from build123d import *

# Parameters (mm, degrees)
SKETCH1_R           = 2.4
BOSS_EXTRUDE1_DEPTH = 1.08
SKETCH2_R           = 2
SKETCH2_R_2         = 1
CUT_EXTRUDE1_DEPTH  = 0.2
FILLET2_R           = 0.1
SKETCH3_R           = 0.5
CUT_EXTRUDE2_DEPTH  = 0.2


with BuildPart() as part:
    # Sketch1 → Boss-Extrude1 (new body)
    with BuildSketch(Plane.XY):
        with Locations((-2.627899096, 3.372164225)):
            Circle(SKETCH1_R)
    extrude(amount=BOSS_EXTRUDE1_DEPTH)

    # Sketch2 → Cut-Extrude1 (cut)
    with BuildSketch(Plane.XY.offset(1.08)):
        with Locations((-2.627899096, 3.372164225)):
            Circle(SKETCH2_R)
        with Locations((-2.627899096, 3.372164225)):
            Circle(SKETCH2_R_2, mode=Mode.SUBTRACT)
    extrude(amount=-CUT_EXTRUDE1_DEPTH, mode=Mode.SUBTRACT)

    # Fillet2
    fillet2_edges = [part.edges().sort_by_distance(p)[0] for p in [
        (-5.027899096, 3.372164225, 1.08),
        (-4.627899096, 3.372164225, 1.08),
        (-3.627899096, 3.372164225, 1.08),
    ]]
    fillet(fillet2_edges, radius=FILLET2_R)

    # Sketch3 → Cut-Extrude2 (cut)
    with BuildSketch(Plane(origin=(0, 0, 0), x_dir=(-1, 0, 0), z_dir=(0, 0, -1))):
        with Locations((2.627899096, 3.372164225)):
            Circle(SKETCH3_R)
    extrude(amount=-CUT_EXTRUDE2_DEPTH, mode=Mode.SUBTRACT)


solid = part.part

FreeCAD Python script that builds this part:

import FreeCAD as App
import Part
import Sketcher

V = App.Vector


def edges_at(feature, points):
    """Names of the edges that pass closest to the given points."""
    edges = feature.Shape.Edges
    near = lambda p: min(range(len(edges)), key=lambda i: edges[i].distToShape(Part.Vertex(*p))[0])
    return sorted({f"Edge{near(p) + 1}" for p in points})

doc = App.newDocument("Part")
body = doc.addObject("PartDesign::Body", "Body")

# Sketch on XY plane
sketch1 = body.newObject("Sketcher::SketchObject", "Sketch")
sketch1.AttachmentSupport = (doc.getObject("XY_Plane"), [""])
sketch1.MapMode = "FlatFace"
sketch1.addGeometry(Part.Circle(V(-2.6, 3.4, 0), V(0, 0, 1), 2.4), False)
sketch1.addConstraint([
    Sketcher.Constraint("Diameter", 0, 4.8),
    Sketcher.Constraint("DistanceX", 0, 3, -1, 1, 2.627899),
    Sketcher.Constraint("DistanceY", -1, 1, 0, 3, 3.372164),
])
pad1 = body.newObject("PartDesign::Pad", "Pad")
pad1.Profile = sketch1
pad1.Length = 1.08

# Sketch on XY plane
sketch2 = body.newObject("Sketcher::SketchObject", "Sketch001")
sketch2.AttachmentSupport = (doc.getObject("XY_Plane"), [""])
sketch2.MapMode = "FlatFace"
sketch2.AttachmentOffset = App.Placement(V(0, 0, 1.08), App.Rotation())
sketch2.addGeometry([
    Part.Circle(V(-2.6, 3.4, 0), V(0, 0, 1), 2),
    Part.Circle(V(-2.6, 3.4, 0), V(0, 0, 1), 1),
], False)
sketch2.addConstraint([
    Sketcher.Constraint("Coincident", 1, 3, 0, 3),
    Sketcher.Constraint("Diameter", 0, 4.0),
    Sketcher.Constraint("Diameter", 1, 2.0),
    Sketcher.Constraint("DistanceX", 0, 3, -1, 1, 2.627899),
    Sketcher.Constraint("DistanceY", -1, 1, 0, 3, 3.372164),
])
pocket1 = body.newObject("PartDesign::Pocket", "Pocket")
pocket1.Profile = sketch2
pocket1.Length = 0.2
doc.recompute()

fillet = body.newObject("PartDesign::Fillet", "Fillet")
fillet.Base = (pocket1, edges_at(pocket1, [(-5.028, 3.372, 1.08), (-4.628, 3.372, 1.08), (-3.628, 3.372, 1.08)]))
fillet.Radius = 0.1

# Sketch on XY plane
sketch3 = body.newObject("Sketcher::SketchObject", "Sketch002")
sketch3.AttachmentSupport = (doc.getObject("XY_Plane"), [""])
sketch3.MapMode = "FlatFace"
sketch3.addGeometry(Part.Circle(V(-2.6, 3.4, 0), V(0, 0, 1), 0.5), False)
sketch3.addConstraint([
    Sketcher.Constraint("Diameter", 0, 1.0),
    Sketcher.Constraint("DistanceX", 0, 3, -1, 1, 2.627899),
    Sketcher.Constraint("DistanceY", -1, 1, 0, 3, 3.372164),
])
pocket2 = body.newObject("PartDesign::Pocket", "Pocket001")
pocket2.Profile = sketch3
pocket2.Length = 0.2
pocket2.Reversed = True

doc.recompute()
